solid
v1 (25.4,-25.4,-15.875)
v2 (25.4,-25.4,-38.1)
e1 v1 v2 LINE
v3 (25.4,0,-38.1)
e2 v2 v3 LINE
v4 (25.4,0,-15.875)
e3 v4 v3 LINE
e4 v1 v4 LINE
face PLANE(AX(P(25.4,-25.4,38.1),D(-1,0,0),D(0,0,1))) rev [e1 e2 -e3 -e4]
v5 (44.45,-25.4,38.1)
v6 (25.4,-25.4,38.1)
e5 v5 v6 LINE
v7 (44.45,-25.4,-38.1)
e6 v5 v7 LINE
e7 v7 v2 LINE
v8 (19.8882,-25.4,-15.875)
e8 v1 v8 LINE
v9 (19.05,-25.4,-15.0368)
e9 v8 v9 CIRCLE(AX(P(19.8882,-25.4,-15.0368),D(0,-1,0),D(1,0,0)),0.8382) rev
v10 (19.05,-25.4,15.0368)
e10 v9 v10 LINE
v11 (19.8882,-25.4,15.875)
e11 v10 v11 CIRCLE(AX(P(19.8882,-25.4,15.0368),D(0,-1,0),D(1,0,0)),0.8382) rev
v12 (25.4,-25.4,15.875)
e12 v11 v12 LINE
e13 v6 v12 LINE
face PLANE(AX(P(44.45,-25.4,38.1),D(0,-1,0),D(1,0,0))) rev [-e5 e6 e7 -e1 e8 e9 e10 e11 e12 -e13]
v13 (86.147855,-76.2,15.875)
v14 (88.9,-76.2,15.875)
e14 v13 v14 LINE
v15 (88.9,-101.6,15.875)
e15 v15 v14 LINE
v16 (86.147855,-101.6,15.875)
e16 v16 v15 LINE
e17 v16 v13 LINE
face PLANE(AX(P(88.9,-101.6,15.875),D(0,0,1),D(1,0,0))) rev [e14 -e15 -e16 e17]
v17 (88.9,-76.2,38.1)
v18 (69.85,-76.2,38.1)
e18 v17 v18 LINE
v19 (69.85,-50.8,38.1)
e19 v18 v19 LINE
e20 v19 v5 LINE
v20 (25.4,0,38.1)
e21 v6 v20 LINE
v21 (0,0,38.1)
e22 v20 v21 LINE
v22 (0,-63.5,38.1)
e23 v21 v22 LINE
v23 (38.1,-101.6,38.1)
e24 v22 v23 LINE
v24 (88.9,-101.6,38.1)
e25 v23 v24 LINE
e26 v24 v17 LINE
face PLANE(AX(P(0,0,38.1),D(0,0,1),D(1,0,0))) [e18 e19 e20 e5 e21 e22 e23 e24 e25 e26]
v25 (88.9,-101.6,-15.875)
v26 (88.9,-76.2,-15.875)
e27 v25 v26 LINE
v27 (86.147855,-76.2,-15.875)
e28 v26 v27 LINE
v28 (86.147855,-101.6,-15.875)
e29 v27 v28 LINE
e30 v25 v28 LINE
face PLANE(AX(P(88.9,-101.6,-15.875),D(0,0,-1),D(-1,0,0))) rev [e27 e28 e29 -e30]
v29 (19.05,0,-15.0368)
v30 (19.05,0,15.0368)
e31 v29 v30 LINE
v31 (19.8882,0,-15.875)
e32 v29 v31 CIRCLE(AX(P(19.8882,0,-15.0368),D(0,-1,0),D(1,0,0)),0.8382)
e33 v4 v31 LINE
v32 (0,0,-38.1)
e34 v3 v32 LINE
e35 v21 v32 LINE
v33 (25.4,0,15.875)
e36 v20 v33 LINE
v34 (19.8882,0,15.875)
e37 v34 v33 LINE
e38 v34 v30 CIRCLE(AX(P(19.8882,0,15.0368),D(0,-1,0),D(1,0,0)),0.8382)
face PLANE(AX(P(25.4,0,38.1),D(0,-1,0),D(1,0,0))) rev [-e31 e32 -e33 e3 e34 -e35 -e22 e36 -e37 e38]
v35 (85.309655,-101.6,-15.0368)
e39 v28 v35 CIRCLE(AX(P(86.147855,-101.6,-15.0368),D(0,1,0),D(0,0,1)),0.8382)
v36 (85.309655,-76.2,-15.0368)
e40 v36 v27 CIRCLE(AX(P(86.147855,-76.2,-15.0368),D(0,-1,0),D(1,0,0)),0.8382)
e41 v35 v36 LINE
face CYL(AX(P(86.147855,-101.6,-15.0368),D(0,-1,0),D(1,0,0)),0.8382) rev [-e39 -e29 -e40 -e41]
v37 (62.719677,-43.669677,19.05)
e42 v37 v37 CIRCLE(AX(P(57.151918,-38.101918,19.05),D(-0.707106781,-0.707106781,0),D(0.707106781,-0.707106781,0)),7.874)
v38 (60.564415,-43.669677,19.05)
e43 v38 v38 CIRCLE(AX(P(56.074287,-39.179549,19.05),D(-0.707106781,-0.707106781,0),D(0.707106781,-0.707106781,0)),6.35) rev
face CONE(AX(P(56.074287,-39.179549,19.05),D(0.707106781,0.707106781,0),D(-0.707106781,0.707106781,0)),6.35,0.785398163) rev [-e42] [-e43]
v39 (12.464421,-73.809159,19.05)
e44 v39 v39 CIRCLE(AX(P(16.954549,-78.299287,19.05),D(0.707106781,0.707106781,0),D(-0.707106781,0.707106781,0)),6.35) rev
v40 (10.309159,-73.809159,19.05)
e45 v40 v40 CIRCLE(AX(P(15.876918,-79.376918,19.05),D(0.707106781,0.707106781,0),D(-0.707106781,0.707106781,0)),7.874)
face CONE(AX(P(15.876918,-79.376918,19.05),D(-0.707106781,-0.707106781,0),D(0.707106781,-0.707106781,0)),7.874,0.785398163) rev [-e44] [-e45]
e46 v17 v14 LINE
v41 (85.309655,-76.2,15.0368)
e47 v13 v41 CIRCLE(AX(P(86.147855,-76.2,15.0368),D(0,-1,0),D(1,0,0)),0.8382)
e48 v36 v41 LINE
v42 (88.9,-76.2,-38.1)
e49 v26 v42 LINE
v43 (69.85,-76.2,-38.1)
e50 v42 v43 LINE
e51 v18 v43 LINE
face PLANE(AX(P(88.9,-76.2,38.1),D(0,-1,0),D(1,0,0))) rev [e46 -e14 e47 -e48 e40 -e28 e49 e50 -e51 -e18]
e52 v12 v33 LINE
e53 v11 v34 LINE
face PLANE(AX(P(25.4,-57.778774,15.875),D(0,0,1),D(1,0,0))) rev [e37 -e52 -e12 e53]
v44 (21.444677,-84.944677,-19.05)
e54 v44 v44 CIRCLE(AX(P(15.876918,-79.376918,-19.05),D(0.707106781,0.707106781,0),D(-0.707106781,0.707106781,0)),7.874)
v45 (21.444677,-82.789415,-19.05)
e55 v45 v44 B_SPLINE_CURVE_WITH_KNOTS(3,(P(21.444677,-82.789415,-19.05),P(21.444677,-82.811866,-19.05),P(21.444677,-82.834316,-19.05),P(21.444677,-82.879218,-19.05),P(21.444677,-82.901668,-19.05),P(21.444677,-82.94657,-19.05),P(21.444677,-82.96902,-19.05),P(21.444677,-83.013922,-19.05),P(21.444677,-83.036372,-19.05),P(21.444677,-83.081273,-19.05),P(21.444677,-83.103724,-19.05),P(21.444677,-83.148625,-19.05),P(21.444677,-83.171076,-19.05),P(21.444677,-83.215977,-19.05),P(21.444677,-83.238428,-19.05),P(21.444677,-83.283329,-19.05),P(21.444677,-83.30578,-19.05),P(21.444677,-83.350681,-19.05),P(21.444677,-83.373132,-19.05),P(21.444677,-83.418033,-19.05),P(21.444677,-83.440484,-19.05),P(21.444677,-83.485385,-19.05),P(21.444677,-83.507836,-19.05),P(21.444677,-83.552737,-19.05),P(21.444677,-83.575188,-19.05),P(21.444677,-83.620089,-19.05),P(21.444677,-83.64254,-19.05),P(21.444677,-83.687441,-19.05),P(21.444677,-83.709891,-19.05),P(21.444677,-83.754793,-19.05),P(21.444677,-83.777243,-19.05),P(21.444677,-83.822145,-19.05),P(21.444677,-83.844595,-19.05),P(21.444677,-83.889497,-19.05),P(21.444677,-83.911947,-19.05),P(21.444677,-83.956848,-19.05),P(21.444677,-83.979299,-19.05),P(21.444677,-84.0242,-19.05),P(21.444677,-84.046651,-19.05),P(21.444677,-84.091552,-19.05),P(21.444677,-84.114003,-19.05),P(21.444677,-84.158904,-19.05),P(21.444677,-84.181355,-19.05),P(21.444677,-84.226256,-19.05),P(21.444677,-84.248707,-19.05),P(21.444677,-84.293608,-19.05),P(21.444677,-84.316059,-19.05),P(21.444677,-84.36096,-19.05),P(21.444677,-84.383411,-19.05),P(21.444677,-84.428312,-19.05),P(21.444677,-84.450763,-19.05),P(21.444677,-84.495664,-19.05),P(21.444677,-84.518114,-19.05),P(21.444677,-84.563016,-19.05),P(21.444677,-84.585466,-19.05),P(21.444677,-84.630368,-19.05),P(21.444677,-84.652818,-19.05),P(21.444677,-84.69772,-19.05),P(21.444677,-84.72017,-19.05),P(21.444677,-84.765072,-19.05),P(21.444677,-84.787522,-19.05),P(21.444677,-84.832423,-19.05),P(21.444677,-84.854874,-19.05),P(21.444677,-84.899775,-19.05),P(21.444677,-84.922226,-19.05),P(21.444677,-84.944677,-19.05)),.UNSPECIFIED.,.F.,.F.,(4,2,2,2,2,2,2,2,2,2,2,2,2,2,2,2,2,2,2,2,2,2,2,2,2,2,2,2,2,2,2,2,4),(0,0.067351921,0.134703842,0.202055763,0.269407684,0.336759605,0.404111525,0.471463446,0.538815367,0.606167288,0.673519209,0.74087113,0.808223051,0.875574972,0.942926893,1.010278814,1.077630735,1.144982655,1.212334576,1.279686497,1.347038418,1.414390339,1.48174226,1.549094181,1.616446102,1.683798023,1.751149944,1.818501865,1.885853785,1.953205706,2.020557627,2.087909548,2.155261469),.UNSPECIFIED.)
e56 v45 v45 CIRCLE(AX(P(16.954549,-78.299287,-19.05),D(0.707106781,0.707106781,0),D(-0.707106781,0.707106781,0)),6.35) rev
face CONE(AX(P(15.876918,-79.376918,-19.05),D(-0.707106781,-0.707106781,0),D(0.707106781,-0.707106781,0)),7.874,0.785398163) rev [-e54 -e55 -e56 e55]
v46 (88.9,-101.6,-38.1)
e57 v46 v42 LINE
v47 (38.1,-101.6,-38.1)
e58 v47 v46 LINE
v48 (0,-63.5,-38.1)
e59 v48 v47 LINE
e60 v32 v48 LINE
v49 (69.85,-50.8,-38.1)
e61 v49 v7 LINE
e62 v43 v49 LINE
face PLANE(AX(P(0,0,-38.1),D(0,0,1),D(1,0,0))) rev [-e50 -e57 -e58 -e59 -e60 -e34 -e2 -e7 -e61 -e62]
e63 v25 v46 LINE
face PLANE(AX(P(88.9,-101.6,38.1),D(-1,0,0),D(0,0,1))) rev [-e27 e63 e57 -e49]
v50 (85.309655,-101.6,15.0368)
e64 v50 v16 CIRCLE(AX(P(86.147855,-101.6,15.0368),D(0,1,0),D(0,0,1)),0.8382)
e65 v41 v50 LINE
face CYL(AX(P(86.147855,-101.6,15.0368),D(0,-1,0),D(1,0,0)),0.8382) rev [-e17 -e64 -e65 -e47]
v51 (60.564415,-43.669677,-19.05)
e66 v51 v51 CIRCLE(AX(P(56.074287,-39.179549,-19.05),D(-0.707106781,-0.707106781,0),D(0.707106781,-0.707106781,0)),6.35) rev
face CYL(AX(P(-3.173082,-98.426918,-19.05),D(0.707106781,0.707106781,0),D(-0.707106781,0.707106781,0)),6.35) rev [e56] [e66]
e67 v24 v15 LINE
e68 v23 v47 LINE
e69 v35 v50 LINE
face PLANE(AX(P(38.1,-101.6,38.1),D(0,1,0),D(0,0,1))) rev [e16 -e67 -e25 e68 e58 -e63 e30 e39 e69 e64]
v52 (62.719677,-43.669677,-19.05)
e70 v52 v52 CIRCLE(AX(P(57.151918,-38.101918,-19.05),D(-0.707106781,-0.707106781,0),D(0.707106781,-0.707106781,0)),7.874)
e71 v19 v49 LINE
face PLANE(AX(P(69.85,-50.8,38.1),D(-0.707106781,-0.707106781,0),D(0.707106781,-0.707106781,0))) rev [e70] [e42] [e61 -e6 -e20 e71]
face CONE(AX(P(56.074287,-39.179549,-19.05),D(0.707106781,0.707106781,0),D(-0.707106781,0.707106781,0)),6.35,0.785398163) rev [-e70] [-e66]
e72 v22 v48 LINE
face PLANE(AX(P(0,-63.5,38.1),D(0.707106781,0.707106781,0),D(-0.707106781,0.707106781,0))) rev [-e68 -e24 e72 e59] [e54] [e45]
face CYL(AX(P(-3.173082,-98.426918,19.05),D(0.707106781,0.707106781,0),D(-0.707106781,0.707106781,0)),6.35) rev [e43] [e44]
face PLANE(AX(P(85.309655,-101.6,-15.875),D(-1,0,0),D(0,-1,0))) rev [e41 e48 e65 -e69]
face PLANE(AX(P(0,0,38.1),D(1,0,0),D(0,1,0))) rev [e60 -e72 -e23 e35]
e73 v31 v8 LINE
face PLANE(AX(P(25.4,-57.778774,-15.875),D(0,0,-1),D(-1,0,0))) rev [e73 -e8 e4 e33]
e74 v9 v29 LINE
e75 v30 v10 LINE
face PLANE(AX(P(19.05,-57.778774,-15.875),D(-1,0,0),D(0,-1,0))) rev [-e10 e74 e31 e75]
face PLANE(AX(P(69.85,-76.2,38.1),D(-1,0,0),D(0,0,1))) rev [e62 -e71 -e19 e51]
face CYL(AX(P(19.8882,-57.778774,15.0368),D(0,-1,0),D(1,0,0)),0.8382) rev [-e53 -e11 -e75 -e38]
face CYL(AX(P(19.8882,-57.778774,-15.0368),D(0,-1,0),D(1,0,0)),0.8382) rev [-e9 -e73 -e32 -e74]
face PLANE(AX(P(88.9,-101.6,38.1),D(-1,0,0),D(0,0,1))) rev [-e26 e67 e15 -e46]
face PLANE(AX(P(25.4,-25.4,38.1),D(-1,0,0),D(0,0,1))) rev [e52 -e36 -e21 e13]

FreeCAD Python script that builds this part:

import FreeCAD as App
import Part
import Sketcher
Q = App.Units.Quantity


def edges_at(feature, points):
    """Names of the edges that pass closest to the given points."""
    edges = feature.Shape.Edges
    near = lambda p: min(range(len(edges)), key=lambda i: edges[i].distToShape(Part.Vertex(*p))[0])
    return sorted({f"Edge{near(p) + 1}" for p in points})

doc = App.newDocument("Part")
params = doc.addObject("Spreadsheet::Sheet", "Params")
for row, (alias, value) in enumerate([
    ("sketch1_width", "2 in"),
    ("sketch1_width2", "1 in"),
    ("sketch1_height", "2.5 in"),
    ("pad1_length", "3 in"),
    ("sketch2_diameter", "0.5 in"),
    ("chamfer_size", "0.06 in"),
    ("sketch3_width", "0.25 in"),
    ("sketch3_height", "1.25 in"),
    ("pocket2_length", "1 in"),
    ("sketch4_height", "1.25 in"),
    ("fillet_radius", "0.033 in"),
], start=1):
    params.set(f"A{row}", alias)
    params.set(f"B{row}", "=" + value)
    params.setAlias(f"B{row}", alias)

body = doc.addObject("PartDesign::Body", "Body")

# Sketch on XY plane
sketch1 = body.newObject("Sketcher::SketchObject", "Sketch")
sketch1.AttachmentSupport = (doc.getObject("XY_Plane"), [""])
sketch1.MapMode = "FlatFace"
sketch1.addGeometry(Part.LineSegment(App.Vector(0, 0, 0), App.Vector(0, -63.5, 0)), False)
sketch1.addGeometry(Part.LineSegment(App.Vector(0, -63.5, 0), App.Vector(38.1, -101.6, 0)), False)
sketch1.addGeometry(Part.LineSegment(App.Vector(38.1, -101.6, 0), App.Vector(88.9, -101.6, 0)), False)
sketch1.addGeometry(Part.LineSegment(App.Vector(88.9, -101.6, 0), App.Vector(88.9, -76.2, 0)), False)
sketch1.addGeometry(Part.LineSegment(App.Vector(88.9, -76.2, 0), App.Vector(69.85, -76.2, 0)), False)
sketch1.addGeometry(Part.LineSegment(App.Vector(69.85, -76.2, 0), App.Vector(69.85, -50.8, 0)), False)
sketch1.addGeometry(Part.LineSegment(App.Vector(69.85, -50.8, 0), App.Vector(44.45, -25.4, 0)), False)
sketch1.addGeometry(Part.LineSegment(App.Vector(44.45, -25.4, 0), App.Vector(25.4, -25.4, 0)), False)
sketch1.addGeometry(Part.LineSegment(App.Vector(25.4, -25.4, 0), App.Vector(25.4, 0, 0)), False)
sketch1.addGeometry(Part.LineSegment(App.Vector(25.4, 0, 0), App.Vector(0, 0, 0)), False)
sketch1.addConstraint(Sketcher.Constraint("Coincident", 0, 2, 1, 1))
sketch1.addConstraint(Sketcher.Constraint("Coincident", 1, 2, 2, 1))
sketch1.addConstraint(Sketcher.Constraint("Coincident", 2, 2, 3, 1))
sketch1.addConstraint(Sketcher.Constraint("Coincident", 3, 2, 4, 1))
sketch1.addConstraint(Sketcher.Constraint("Coincident", 4, 2, 5, 1))
sketch1.addConstraint(Sketcher.Constraint("Coincident", 5, 2, 6, 1))
sketch1.addConstraint(Sketcher.Constraint("Coincident", 6, 2, 7, 1))
sketch1.addConstraint(Sketcher.Constraint("Coincident", 7, 2, 8, 1))
sketch1.addConstraint(Sketcher.Constraint("Coincident", 8, 2, 9, 1))
sketch1.addConstraint(Sketcher.Constraint("Coincident", 9, 2, 0, 1))
sketch1.addConstraint(Sketcher.Constraint("Vertical", 0))
sketch1.addConstraint(Sketcher.Constraint("Horizontal", 2))
sketch1.addConstraint(Sketcher.Constraint("Vertical", 3))
sketch1.addConstraint(Sketcher.Constraint("Horizontal", 4))
sketch1.addConstraint(Sketcher.Constraint("Vertical", 5))
sketch1.addConstraint(Sketcher.Constraint("Horizontal", 7))
sketch1.addConstraint(Sketcher.Constraint("Vertical", 8))
sketch1.addConstraint(Sketcher.Constraint("Horizontal", 9))
sketch1.addConstraint(Sketcher.Constraint("Coincident", 9, 2, -1, 1))
sketch1.addConstraint(Sketcher.Constraint("Parallel", 1, 6))
sketch1.addConstraint(Sketcher.Constraint("Equal", 4, 7))
sketch1.addConstraint(Sketcher.Constraint("Equal", 9, 3))
sketch1.addConstraint(Sketcher.Constraint("Equal", 3, 5))
sketch1.addConstraint(Sketcher.Constraint("Equal", 5, 8))
sketch1.addConstraint(Sketcher.Constraint("DistanceX", 2, 1, 2, 2, Q("2 in")))
sketch1.addConstraint(Sketcher.Constraint("DistanceX", 9, 2, 9, 1, Q("1 in")))
sketch1.addConstraint(Sketcher.Constraint("DistanceY", 0, 2, 0, 1, Q("2.5 in")))
sketch1.addConstraint(Sketcher.Constraint("DistanceY", 1, 2, -1, 1, Q("4 in")))
sketch1.addConstraint(Sketcher.Constraint("Angle", 1, Q("-45 deg")))
sketch1.setExpression("Constraints[24]", "Params.sketch1_width")
sketch1.setExpression("Constraints[25]", "Params.sketch1_width2")
sketch1.setExpression("Constraints[26]", "Params.sketch1_height")
pad1 = body.newObject("PartDesign::Pad", "Pad")
pad1.Profile = sketch1
pad1.setExpression("Length", "Params.pad1_length")
pad1.Midplane = True

# Sketch on an angled plane
sketch2 = body.newObject("Sketcher::SketchObject", "Sketch001")
sketch2.Placement = App.Placement(App.Vector(9.525, 9.525, 0), App.Rotation(App.Vector(0, 0, -1), App.Vector(-0.707106781, 0.707106781, 0), App.Vector(0.707106781, 0.707106781, 0), "ZXY"))
sketch2.addGeometry(Part.Circle(App.Vector(-19.05, -67.354633, 0), App.Vector(0, 0, 1), 6.35), False)
sketch2.addGeometry(Part.Circle(App.Vector(19.05, -67.354633, 0), App.Vector(0, 0, 1), 6.35), False)
sketch2.addConstraint(Sketcher.Constraint("Equal", 0, 1))
sketch2.addConstraint(Sketcher.Constraint("Symmetric", 0, 3, 1, 3, -2))
sketch2.addConstraint(Sketcher.Constraint("Diameter", 0, Q("0.5 in")))
sketch2.addConstraint(Sketcher.Constraint("DistanceX", 0, 3, 1, 3, Q("1.5 in")))
sketch2.addConstraint(Sketcher.Constraint("DistanceY", 0, 3, -1, 1, Q("67.354633 mm")))
sketch2.setExpression("Constraints[2]", "Params.sketch2_diameter")
pocket1 = body.newObject("PartDesign::Pocket", "Pocket")
pocket1.Profile = sketch2
pocket1.Type = "ThroughAll"
doc.recompute()

chamfer = body.newObject("PartDesign::Chamfer", "Chamfer")
chamfer.Base = (pocket1, edges_at(pocket1, [
    (20.367, -83.867, 19.05),
    (61.642, -42.592, 19.05),
    (20.367, -83.867, -19.05),
    (61.642, -42.592, -19.05),
]))
chamfer.setExpression("Size", "Params.chamfer_size")

# Sketch on XZ plane
sketch3 = body.newObject("Sketcher::SketchObject", "Sketch002")
sketch3.AttachmentSupport = (doc.getObject("XZ_Plane"), [""])
sketch3.MapMode = "FlatFace"
sketch3.addGeometry(Part.LineSegment(App.Vector(19.05, -15.875, 0), App.Vector(19.05, 15.875, 0)), False)
sketch3.addGeometry(Part.LineSegment(App.Vector(19.05, 15.875, 0), App.Vector(25.4, 15.875, 0)), False)
sketch3.addGeometry(Part.LineSegment(App.Vector(25.4, 15.875, 0), App.Vector(25.4, -15.875, 0)), False)
sketch3.addGeometry(Part.LineSegment(App.Vector(25.4, -15.875, 0), App.Vector(19.05, -15.875, 0)), False)
sketch3.addConstraint(Sketcher.Constraint("Coincident", 0, 2, 1, 1))
sketch3.addConstraint(Sketcher.Constraint("Coincident", 1, 2, 2, 1))
sketch3.addConstraint(Sketcher.Constraint("Coincident", 2, 2, 3, 1))
sketch3.addConstraint(Sketcher.Constraint("Coincident", 3, 2, 0, 1))
sketch3.addConstraint(Sketcher.Constraint("Vertical", 0))
sketch3.addConstraint(Sketcher.Constraint("Horizontal", 1))
sketch3.addConstraint(Sketcher.Constraint("Vertical", 2))
sketch3.addConstraint(Sketcher.Constraint("Horizontal", 3))
sketch3.addConstraint(Sketcher.Constraint("DistanceX", -1, 1, 1, 2, Q("1 in")))
sketch3.addConstraint(Sketcher.Constraint("DistanceX", 1, 1, 1, 2, Q("0.25 in")))
sketch3.addConstraint(Sketcher.Constraint("DistanceY", 0, 1, 0, 2, Q("1.25 in")))
sketch3.addConstraint(Sketcher.Constraint("DistanceY", -1, 1, 0, 2, Q("0.625 in")))
sketch3.setExpression("Constraints[9]", "Params.sketch3_width")
sketch3.setExpression("Constraints[10]", "Params.sketch3_height")
pocket2 = body.newObject("PartDesign::Pocket", "Pocket001")
pocket2.Profile = sketch3
pocket2.setExpression("Length", "Params.pocket2_length")
pocket2.Reversed = True

# Sketch on XZ plane
sketch4 = body.newObject("Sketcher::SketchObject", "Sketch003")
sketch4.AttachmentSupport = (doc.getObject("XZ_Plane"), [""])
sketch4.MapMode = "FlatFace"
sketch4.AttachmentOffset = App.Placement(App.Vector(0, 0, 3 * 25.4), App.Rotation())
sketch4.addGeometry(Part.LineSegment(App.Vector(85.309655, -15.875, 0), App.Vector(85.309655, 15.875, 0)), False)
sketch4.addGeometry(Part.LineSegment(App.Vector(85.309655, 15.875, 0), App.Vector(88.9, 15.875, 0)), False)
sketch4.addGeometry(Part.LineSegment(App.Vector(88.9, 15.875, 0), App.Vector(88.9, -15.875, 0)), False)
sketch4.addGeometry(Part.LineSegment(App.Vector(88.9, -15.875, 0), App.Vector(85.309655, -15.875, 0)), False)
sketch4.addConstraint(Sketcher.Constraint("Coincident", 0, 2, 1, 1))
sketch4.addConstraint(Sketcher.Constraint("Coincident", 1, 2, 2, 1))
sketch4.addConstraint(Sketcher.Constraint("Coincident", 2, 2, 3, 1))
sketch4.addConstraint(Sketcher.Constraint("Coincident", 3, 2, 0, 1))
sketch4.addConstraint(Sketcher.Constraint("Vertical", 0))
sketch4.addConstraint(Sketcher.Constraint("Horizontal", 1))
sketch4.addConstraint(Sketcher.Constraint("Vertical", 2))
sketch4.addConstraint(Sketcher.Constraint("Horizontal", 3))
sketch4.addConstraint(Sketcher.Constraint("DistanceY", 0, 1, 0, 2, Q("1.25 in")))
sketch4.addConstraint(Sketcher.Constraint("DistanceX", -1, 1, 1, 2, Q("3.5 in")))
sketch4.addConstraint(Sketcher.Constraint("DistanceY", -1, 1, 0, 2, Q("0.625 in")))
sketch4.addConstraint(Sketcher.Constraint("DistanceX", 1, 1, 1, 2, Q("3.590345 mm")))
sketch4.setExpression("Constraints[8]", "Params.sketch4_height")
pocket3 = body.newObject("PartDesign::Pocket", "Pocket002")
pocket3.Profile = sketch4
pocket3.Type = "ThroughAll"
pocket3.Reversed = True
doc.recompute()

fillet = body.newObject("PartDesign::Fillet", "Fillet")
fillet.Base = (pocket3, edges_at(pocket3, [
    (19.05, -12.7, -15.875),
    (19.05, -12.7, 15.875),
    (85.31, -88.9, 15.875),
    (85.31, -88.9, -15.875),
]))
fillet.setExpression("Radius", "Params.fillet_radius")

doc.recompute()
